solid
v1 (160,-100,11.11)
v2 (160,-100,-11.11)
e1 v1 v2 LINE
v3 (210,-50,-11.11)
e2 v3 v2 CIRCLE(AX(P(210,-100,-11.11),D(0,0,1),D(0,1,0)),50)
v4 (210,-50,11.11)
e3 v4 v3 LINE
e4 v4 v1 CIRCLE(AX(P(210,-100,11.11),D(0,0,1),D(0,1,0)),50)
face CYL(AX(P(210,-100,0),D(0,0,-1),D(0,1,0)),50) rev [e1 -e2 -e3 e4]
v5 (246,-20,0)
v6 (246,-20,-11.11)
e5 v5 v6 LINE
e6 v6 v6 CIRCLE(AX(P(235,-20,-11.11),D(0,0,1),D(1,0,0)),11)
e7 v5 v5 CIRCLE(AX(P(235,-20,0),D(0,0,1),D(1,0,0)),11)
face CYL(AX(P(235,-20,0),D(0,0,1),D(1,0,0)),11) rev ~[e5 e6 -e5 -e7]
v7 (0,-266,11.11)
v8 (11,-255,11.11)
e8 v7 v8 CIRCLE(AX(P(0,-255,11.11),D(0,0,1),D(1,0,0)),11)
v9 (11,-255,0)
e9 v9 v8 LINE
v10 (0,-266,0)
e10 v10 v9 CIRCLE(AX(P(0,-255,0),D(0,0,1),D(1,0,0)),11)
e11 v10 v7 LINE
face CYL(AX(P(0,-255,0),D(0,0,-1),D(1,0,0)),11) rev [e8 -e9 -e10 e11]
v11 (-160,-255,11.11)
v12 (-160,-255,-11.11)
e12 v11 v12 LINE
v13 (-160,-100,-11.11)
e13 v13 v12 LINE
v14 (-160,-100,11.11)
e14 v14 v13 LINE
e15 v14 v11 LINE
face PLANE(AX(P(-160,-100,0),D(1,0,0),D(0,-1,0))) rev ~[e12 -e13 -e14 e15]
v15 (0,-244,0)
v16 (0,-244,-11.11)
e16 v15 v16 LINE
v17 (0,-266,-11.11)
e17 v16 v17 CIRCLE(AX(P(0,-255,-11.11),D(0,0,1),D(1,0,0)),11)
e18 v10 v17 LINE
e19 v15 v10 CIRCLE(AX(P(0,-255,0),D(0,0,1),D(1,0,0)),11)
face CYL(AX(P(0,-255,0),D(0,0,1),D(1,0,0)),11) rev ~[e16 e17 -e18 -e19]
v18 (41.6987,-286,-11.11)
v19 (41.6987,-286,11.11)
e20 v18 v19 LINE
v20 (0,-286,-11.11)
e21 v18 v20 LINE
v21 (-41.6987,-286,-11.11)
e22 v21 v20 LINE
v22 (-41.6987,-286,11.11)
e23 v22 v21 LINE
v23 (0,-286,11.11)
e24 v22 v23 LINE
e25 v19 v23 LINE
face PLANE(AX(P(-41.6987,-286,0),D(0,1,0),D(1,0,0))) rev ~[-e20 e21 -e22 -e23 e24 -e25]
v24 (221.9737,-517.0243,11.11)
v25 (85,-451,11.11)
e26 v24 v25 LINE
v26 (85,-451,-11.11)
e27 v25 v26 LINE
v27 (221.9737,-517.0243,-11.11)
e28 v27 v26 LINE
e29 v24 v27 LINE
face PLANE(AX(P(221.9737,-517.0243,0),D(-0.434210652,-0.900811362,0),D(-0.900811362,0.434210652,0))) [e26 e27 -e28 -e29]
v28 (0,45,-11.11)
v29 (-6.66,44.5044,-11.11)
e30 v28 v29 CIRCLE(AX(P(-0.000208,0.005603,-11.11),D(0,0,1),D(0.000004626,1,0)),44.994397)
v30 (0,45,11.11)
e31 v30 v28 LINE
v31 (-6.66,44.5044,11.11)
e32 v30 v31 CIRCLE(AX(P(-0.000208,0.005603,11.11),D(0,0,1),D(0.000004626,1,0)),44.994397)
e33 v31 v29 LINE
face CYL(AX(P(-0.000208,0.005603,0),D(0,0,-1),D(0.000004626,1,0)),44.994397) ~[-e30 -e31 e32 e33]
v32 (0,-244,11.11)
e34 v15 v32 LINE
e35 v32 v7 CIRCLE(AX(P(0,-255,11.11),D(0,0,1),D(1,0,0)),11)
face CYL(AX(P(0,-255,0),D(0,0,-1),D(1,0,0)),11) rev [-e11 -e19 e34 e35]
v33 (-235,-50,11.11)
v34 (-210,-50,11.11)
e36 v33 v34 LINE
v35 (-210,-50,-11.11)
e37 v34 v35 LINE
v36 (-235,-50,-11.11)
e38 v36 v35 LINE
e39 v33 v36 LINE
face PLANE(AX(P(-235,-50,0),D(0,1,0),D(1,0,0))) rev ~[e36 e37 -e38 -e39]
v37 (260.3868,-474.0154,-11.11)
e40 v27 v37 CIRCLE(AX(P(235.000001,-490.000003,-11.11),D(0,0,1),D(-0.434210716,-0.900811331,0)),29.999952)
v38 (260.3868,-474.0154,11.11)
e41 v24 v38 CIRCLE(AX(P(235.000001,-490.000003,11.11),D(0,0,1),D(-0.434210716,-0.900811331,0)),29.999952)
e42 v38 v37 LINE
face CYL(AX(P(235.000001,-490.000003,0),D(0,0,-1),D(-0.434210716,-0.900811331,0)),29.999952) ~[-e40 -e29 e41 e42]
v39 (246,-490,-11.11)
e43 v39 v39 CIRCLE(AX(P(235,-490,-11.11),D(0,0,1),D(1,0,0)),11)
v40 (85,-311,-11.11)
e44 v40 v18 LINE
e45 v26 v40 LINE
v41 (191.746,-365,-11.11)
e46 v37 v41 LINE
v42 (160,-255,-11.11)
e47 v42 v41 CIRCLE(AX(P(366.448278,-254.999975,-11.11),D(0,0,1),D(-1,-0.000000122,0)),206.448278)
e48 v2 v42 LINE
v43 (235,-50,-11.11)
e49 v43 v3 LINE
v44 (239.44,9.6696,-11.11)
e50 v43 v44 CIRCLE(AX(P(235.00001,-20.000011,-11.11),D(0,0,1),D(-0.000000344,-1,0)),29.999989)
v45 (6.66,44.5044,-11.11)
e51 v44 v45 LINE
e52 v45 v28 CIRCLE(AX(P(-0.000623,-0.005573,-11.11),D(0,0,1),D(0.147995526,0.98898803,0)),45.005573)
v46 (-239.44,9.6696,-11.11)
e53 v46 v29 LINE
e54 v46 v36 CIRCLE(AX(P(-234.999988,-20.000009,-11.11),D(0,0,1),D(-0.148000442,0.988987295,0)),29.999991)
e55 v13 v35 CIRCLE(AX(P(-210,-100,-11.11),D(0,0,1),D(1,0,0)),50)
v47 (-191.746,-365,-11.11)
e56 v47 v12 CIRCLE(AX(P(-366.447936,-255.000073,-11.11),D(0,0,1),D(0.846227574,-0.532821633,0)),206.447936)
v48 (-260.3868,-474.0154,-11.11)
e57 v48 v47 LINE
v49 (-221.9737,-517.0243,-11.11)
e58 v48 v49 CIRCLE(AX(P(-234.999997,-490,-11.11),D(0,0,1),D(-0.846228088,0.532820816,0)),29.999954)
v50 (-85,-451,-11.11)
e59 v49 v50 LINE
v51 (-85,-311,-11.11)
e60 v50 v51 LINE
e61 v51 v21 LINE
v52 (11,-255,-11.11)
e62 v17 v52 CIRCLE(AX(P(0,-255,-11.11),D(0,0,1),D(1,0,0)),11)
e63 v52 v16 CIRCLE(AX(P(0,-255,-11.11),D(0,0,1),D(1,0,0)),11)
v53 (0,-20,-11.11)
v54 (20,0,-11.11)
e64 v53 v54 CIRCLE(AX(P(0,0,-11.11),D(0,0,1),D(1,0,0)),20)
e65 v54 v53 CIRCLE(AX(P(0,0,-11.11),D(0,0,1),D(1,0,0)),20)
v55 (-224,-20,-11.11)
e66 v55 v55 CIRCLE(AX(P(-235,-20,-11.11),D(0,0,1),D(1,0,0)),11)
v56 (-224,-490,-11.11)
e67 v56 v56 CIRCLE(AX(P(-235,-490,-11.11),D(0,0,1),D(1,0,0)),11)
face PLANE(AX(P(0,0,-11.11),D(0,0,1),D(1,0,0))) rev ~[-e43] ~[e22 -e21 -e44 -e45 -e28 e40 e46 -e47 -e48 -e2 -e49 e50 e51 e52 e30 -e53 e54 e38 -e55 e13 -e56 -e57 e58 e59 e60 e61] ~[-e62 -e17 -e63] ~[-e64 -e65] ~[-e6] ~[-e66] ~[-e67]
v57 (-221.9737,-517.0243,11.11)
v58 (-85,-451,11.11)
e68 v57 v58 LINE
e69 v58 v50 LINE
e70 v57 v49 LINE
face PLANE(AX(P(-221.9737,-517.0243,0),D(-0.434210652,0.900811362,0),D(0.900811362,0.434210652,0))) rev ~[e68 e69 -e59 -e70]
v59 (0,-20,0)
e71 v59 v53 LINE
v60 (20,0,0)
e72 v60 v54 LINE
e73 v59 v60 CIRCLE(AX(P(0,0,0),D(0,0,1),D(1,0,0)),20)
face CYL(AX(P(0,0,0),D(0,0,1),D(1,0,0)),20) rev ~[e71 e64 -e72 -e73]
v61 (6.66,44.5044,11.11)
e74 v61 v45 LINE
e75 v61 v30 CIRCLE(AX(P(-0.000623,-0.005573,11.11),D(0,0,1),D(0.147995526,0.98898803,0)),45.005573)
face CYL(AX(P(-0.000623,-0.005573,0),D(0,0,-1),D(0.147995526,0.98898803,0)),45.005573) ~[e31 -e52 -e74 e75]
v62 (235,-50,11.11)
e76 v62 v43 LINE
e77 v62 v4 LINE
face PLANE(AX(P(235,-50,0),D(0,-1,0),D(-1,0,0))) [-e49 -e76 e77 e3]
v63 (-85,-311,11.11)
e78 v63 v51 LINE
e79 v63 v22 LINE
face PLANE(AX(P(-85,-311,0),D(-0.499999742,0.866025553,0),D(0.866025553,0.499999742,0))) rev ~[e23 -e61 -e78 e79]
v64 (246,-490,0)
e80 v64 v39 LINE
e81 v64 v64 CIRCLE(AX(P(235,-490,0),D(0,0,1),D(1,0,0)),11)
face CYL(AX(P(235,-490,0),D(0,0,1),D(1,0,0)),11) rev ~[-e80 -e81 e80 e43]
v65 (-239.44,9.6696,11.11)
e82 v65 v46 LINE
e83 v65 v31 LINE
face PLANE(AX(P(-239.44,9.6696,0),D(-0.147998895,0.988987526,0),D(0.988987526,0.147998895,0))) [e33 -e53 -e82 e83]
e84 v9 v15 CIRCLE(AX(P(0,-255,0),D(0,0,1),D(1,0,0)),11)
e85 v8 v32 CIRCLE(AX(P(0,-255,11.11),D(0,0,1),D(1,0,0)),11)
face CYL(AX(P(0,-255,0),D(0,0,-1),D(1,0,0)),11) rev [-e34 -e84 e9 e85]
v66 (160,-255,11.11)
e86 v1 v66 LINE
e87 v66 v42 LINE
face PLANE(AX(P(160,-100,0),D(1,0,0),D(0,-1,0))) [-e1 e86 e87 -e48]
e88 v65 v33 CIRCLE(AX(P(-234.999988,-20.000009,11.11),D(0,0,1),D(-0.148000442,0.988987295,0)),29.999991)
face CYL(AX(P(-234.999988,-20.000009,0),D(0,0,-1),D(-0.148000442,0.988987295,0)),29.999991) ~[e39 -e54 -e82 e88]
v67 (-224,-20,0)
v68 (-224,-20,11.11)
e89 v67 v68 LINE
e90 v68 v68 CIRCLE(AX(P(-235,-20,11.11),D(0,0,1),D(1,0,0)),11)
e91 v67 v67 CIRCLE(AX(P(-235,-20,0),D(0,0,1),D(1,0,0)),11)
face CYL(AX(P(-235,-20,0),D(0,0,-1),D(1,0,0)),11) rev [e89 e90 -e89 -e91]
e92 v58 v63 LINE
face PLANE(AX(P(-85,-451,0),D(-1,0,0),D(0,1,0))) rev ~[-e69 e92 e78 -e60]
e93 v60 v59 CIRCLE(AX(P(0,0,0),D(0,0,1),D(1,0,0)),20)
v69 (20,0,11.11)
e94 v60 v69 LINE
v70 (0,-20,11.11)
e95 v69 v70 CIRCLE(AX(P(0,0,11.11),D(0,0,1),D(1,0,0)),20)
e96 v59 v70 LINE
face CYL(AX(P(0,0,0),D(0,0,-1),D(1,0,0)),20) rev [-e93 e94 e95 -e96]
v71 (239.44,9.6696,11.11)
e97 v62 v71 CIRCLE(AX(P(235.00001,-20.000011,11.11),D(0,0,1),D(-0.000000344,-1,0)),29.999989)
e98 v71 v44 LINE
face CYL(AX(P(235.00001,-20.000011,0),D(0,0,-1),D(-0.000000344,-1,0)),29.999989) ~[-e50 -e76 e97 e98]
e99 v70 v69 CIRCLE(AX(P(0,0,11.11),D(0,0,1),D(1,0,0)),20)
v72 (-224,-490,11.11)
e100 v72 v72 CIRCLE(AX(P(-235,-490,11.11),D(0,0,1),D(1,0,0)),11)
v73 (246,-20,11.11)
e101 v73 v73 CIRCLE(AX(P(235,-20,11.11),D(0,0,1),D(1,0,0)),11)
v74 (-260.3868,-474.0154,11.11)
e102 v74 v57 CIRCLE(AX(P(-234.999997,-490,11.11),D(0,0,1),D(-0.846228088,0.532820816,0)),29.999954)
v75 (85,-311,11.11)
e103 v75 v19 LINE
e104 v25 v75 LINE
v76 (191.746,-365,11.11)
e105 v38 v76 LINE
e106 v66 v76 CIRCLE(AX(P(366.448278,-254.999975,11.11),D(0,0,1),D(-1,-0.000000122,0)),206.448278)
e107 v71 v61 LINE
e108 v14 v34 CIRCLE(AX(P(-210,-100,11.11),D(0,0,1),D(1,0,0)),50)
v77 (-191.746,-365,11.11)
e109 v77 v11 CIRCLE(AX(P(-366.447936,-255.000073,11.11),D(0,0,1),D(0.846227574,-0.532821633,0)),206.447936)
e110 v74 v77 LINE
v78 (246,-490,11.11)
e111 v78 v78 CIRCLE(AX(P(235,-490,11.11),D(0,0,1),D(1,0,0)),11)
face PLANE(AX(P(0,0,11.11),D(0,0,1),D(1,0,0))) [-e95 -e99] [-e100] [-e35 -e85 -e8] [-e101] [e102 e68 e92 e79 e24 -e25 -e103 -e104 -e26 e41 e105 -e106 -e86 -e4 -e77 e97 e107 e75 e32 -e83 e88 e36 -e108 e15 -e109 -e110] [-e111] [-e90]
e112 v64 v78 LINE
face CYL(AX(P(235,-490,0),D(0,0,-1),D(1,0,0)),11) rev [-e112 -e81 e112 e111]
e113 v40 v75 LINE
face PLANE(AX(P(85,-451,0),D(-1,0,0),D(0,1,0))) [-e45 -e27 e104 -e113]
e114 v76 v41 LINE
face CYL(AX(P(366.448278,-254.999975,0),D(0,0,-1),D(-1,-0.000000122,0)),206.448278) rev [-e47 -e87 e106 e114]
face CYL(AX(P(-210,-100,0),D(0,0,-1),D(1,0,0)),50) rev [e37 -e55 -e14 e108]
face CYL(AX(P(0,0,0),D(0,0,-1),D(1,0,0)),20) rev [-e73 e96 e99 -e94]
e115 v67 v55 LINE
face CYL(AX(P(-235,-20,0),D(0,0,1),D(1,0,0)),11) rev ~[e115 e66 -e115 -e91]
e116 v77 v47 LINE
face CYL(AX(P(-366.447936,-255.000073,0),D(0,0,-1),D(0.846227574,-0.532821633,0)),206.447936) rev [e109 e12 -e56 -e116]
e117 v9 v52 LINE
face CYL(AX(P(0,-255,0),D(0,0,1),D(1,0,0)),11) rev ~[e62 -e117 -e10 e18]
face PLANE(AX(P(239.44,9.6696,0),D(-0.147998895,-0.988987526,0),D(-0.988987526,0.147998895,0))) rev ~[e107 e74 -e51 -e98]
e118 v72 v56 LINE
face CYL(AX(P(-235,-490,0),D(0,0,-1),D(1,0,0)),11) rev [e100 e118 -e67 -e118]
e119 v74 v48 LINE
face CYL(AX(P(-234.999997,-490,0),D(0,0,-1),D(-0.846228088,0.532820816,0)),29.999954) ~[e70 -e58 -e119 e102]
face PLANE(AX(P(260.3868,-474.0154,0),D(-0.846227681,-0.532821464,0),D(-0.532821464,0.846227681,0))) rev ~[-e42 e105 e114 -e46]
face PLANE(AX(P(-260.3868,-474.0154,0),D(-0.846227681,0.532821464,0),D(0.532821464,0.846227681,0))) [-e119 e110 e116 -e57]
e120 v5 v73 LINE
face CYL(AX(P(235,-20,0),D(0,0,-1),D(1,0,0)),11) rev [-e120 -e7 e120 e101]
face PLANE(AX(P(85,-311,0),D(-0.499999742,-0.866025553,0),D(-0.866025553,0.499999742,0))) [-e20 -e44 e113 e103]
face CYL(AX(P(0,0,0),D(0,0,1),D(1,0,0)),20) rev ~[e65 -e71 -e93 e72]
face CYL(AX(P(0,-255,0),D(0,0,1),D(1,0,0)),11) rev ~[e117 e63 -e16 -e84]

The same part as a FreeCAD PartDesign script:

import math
import FreeCAD as App
import Part
import Sketcher

V = App.Vector

doc = App.newDocument("Part")
body = doc.addObject("PartDesign::Body", "Body")

# Sketch on XY plane
sketch1 = body.newObject("Sketcher::SketchObject", "Sketch")
sketch1.AttachmentSupport = (doc.getObject("XY_Plane"), [""])
sketch1.MapMode = "FlatFace"
sketch1.addGeometry(Part.LineSegment(V(-41.6987, -286, 0), V(0, -286, 0)), False)
sketch1.addGeometry(Part.LineSegment(V(0, -286, 0), V(41.6987, -286, 0)), False)
sketch1.addGeometry(Part.LineSegment(V(41.6987, -286, 0), V(85, -311, 0)), False)
sketch1.addGeometry(Part.LineSegment(V(85, -311, 0), V(85, -451, 0)), False)
sketch1.addGeometry(Part.LineSegment(V(85, -451, 0), V(221.9737, -517.0243, 0)), False)
sketch1.addGeometry(Part.ArcOfCircle(Part.Circle(V(235, -490, 0), V(0, 0, 1), 29.999955), math.radians(-115.735077), math.radians(32.196249)), False)
sketch1.addGeometry(Part.LineSegment(V(260.3868, -474.0154, 0), V(191.746, -365, 0)), False)
sketch1.addGeometry(Part.ArcOfCircle(Part.Circle(V(366.4481, -255, 0), V(0, 0, 1), 206.4481), math.radians(180), math.radians(212.196293)), False)
sketch1.addGeometry(Part.LineSegment(V(160, -255, 0), V(160, -100, 0)), False)
sketch1.addGeometry(Part.ArcOfCircle(Part.Circle(V(210, -100, 0), V(0, 0, 1), 50), math.radians(90), math.radians(180)), False)
sketch1.addGeometry(Part.LineSegment(V(210, -50, 0), V(235, -50, 0)), False)
sketch1.addGeometry(Part.ArcOfCircle(Part.Circle(V(235, -20, 0), V(0, 0, 1), 30), math.radians(-90), math.radians(81.488953)), False)
sketch1.addGeometry(Part.LineSegment(V(239.44, 9.6696, 0), V(6.66, 44.5044, 0)), False)
sketch1.addGeometry(Part.ArcOfCircle(Part.Circle(V(-0.000623, -0.005573, 0), V(0, 0, 1), 45.005573), math.radians(81.489218), math.radians(89.999206)), False)
sketch1.addGeometry(Part.ArcOfCircle(Part.Circle(V(-0.000208, 0.005603, 0), V(0, 0, 1), 44.994397), math.radians(89.999735), math.radians(98.511841)), False)
sketch1.addGeometry(Part.LineSegment(V(-6.66, 44.5044, 0), V(-239.44, 9.6696, 0)), False)
sketch1.addGeometry(Part.ArcOfCircle(Part.Circle(V(-235, -20, 0), V(0, 0, 1), 29.999979), math.radians(98.511047), math.radians(270)), False)
sketch1.addGeometry(Part.LineSegment(V(-235, -50, 0), V(-210, -50, 0)), False)
sketch1.addGeometry(Part.ArcOfCircle(Part.Circle(V(-210, -100, 0), V(0, 0, 1), 50), math.radians(0), math.radians(90)), False)
sketch1.addGeometry(Part.LineSegment(V(-160, -100, 0), V(-160, -255, 0)), False)
sketch1.addGeometry(Part.ArcOfCircle(Part.Circle(V(-366.4481, -255, 0), V(0, 0, 1), 206.448114), math.radians(-32.196293), math.radians(0)), False)
sketch1.addGeometry(Part.LineSegment(V(-191.746, -365, 0), V(-260.3868, -474.0154, 0)), False)
sketch1.addGeometry(Part.ArcOfCircle(Part.Circle(V(-235, -490, 0), V(0, 0, 1), 29.999951), math.radians(147.803751), math.radians(295.735077)), False)
sketch1.addGeometry(Part.LineSegment(V(-221.9737, -517.0243, 0), V(-85, -451, 0)), False)
sketch1.addGeometry(Part.LineSegment(V(-85, -451, 0), V(-85, -311, 0)), False)
sketch1.addGeometry(Part.LineSegment(V(-85, -311, 0), V(-41.6987, -286, 0)), False)
sketch1.addGeometry(Part.Circle(V(-235, -490, 0), V(0, 0, 1), 11), False)
sketch1.addGeometry(Part.ArcOfCircle(Part.Circle(V(0, -255, 0), V(0, 0, 1), 11), math.radians(90), math.radians(270)), False)
sketch1.addGeometry(Part.ArcOfCircle(Part.Circle(V(0, -255, 0), V(0, 0, 1), 11), math.radians(-90), math.radians(90)), False)
sketch1.addGeometry(Part.Circle(V(235, -490, 0), V(0, 0, 1), 11), False)
sketch1.addGeometry(Part.Circle(V(-235, -20, 0), V(0, 0, 1), 11), False)
sketch1.addGeometry(Part.Circle(V(0, 0, 0), V(0, 0, 1), 20), False)
sketch1.addGeometry(Part.Circle(V(235, -20, 0), V(0, 0, 1), 11), False)
sketch1.addConstraint(Sketcher.Constraint("Coincident", 0, 2, 1, 1))
sketch1.addConstraint(Sketcher.Constraint("Coincident", 1, 2, 2, 1))
sketch1.addConstraint(Sketcher.Constraint("Coincident", 2, 2, 3, 1))
sketch1.addConstraint(Sketcher.Constraint("Coincident", 3, 2, 4, 1))
sketch1.addConstraint(Sketcher.Constraint("Coincident", 4, 2, 5, 1))
sketch1.addConstraint(Sketcher.Constraint("Coincident", 5, 2, 6, 1))
sketch1.addConstraint(Sketcher.Constraint("Coincident", 6, 2, 7, 2))
sketch1.addConstraint(Sketcher.Constraint("Coincident", 7, 1, 8, 1))
sketch1.addConstraint(Sketcher.Constraint("Coincident", 8, 2, 9, 2))
sketch1.addConstraint(Sketcher.Constraint("Coincident", 9, 1, 10, 1))
sketch1.addConstraint(Sketcher.Constraint("Coincident", 10, 2, 11, 1))
sketch1.addConstraint(Sketcher.Constraint("Coincident", 11, 2, 12, 1))
sketch1.addConstraint(Sketcher.Constraint("Coincident", 12, 2, 13, 1))
sketch1.addConstraint(Sketcher.Constraint("Coincident", 13, 2, 14, 1))
sketch1.addConstraint(Sketcher.Constraint("Coincident", 14, 2, 15, 1))
sketch1.addConstraint(Sketcher.Constraint("Coincident", 15, 2, 16, 1))
sketch1.addConstraint(Sketcher.Constraint("Coincident", 16, 2, 17, 1))
sketch1.addConstraint(Sketcher.Constraint("Coincident", 17, 2, 18, 2))
sketch1.addConstraint(Sketcher.Constraint("Coincident", 18, 1, 19, 1))
sketch1.addConstraint(Sketcher.Constraint("Coincident", 19, 2, 20, 2))
sketch1.addConstraint(Sketcher.Constraint("Coincident", 20, 1, 21, 1))
sketch1.addConstraint(Sketcher.Constraint("Coincident", 21, 2, 22, 1))
sketch1.addConstraint(Sketcher.Constraint("Coincident", 22, 2, 23, 1))
sketch1.addConstraint(Sketcher.Constraint("Coincident", 23, 2, 24, 1))
sketch1.addConstraint(Sketcher.Constraint("Coincident", 24, 2, 25, 1))
sketch1.addConstraint(Sketcher.Constraint("Coincident", 25, 2, 0, 1))
sketch1.addConstraint(Sketcher.Constraint("Coincident", 27, 1, 28, 2))
sketch1.addConstraint(Sketcher.Constraint("Coincident", 28, 1, 27, 2))
sketch1.addConstraint(Sketcher.Constraint("Horizontal", 0))
sketch1.addConstraint(Sketcher.Constraint("Horizontal", 1))
sketch1.addConstraint(Sketcher.Constraint("Vertical", 3))
sketch1.addConstraint(Sketcher.Constraint("Vertical", 8))
sketch1.addConstraint(Sketcher.Constraint("Horizontal", 10))
sketch1.addConstraint(Sketcher.Constraint("Horizontal", 17))
sketch1.addConstraint(Sketcher.Constraint("Vertical", 19))
sketch1.addConstraint(Sketcher.Constraint("Vertical", 24))
sketch1.addConstraint(Sketcher.Constraint("Coincident", 31, 3, -1, 1))
sketch1.addConstraint(Sketcher.Constraint("Coincident", 26, 3, 22, 3))
sketch1.addConstraint(Sketcher.Constraint("Coincident", 29, 3, 5, 3))
sketch1.addConstraint(Sketcher.Constraint("Coincident", 30, 3, 16, 3))
sketch1.addConstraint(Sketcher.Constraint("Coincident", 32, 3, 11, 3))
sketch1.addConstraint(Sketcher.Constraint("PointOnObject", 27, 3, -2))
sketch1.addConstraint(Sketcher.Constraint("PointOnObject", 28, 3, -2))
sketch1.addConstraint(Sketcher.Constraint("PointOnObject", 0, 2, -2))
sketch1.addConstraint(Sketcher.Constraint("PointOnObject", 13, 2, -2))
sketch1.addConstraint(Sketcher.Constraint("PointOnObject", 27, 1, -2))
sketch1.addConstraint(Sketcher.Constraint("PointOnObject", 28, 1, -2))
sketch1.addConstraint(Sketcher.Constraint("Diameter", 26, 22.0))
sketch1.addConstraint(Sketcher.Constraint("Diameter", 29, 22.0))
sketch1.addConstraint(Sketcher.Constraint("Diameter", 30, 22.0))
sketch1.addConstraint(Sketcher.Constraint("Diameter", 31, 40.0))
sketch1.addConstraint(Sketcher.Constraint("Diameter", 32, 22.0))
sketch1.addConstraint(Sketcher.Constraint("Radius", 5, 30.0))
sketch1.addConstraint(Sketcher.Constraint("Radius", 9, 50.0))
sketch1.addConstraint(Sketcher.Constraint("Radius", 11, 30.0))
sketch1.addConstraint(Sketcher.Constraint("Radius", 16, 30.0))
sketch1.addConstraint(Sketcher.Constraint("Radius", 18, 50.0))
sketch1.addConstraint(Sketcher.Constraint("Radius", 22, 30.0))
sketch1.addConstraint(Sketcher.Constraint("Radius", 27, 11.0))
sketch1.addConstraint(Sketcher.Constraint("DistanceX", 10, 1, 10, 2, 25.0))
sketch1.addConstraint(Sketcher.Constraint("DistanceX", 17, 1, 17, 2, 25.0))
sketch1.addConstraint(Sketcher.Constraint("DistanceY", 3, 2, 3, 1, 140.0))
sketch1.addConstraint(Sketcher.Constraint("DistanceY", 24, 1, 24, 2, 140.0))
sketch1.addConstraint(Sketcher.Constraint("Distance", 2, 50.0))
sketch1.addConstraint(Sketcher.Constraint("Distance", 25, 50.0))
sketch1.addConstraint(Sketcher.Constraint("DistanceX", -1, 1, 5, 3, 235.0))
sketch1.addConstraint(Sketcher.Constraint("DistanceX", -1, 1, 11, 3, 235.0))
sketch1.addConstraint(Sketcher.Constraint("DistanceY", 11, 3, -1, 1, 20.0))
sketch1.addConstraint(Sketcher.Constraint("DistanceX", 16, 3, -1, 1, 235.0))
sketch1.addConstraint(Sketcher.Constraint("DistanceY", 16, 3, -1, 1, 20.0))
sketch1.addConstraint(Sketcher.Constraint("DistanceX", 22, 3, -1, 1, 235.0))
sketch1.addConstraint(Sketcher.Constraint("DistanceX", -1, 1, 10, 2, 235.0))
sketch1.addConstraint(Sketcher.Constraint("DistanceX", 16, 2, -1, 1, 235.0))
sketch1.addConstraint(Sketcher.Constraint("DistanceY", 5, 3, 7, 3, 235.0))
sketch1.addConstraint(Sketcher.Constraint("DistanceX", 9, 3, 5, 3, 25.0))
sketch1.addConstraint(Sketcher.Constraint("DistanceY", 7, 3, 11, 3, 235.0))
sketch1.addConstraint(Sketcher.Constraint("DistanceX", 16, 3, 18, 3, 25.0))
sketch1.addConstraint(Sketcher.Constraint("DistanceY", 20, 3, 16, 3, 235.0))
sketch1.addConstraint(Sketcher.Constraint("DistanceY", 22, 3, 20, 3, 235.0))
sketch1.addConstraint(Sketcher.Constraint("DistanceY", 5, 3, 27, 3, 235.0))
sketch1.addConstraint(Sketcher.Constraint("DistanceY", 2, 2, 1, 2, 25.0))
sketch1.addConstraint(Sketcher.Constraint("DistanceX", 2, 2, 7, 1, 75.0))
sketch1.addConstraint(Sketcher.Constraint("DistanceY", 6, 2, 7, 1, 110.0))
sketch1.addConstraint(Sketcher.Constraint("DistanceY", 8, 2, 9, 1, 50.0))
sketch1.addConstraint(Sketcher.Constraint("DistanceY", 18, 1, 17, 2, 50.0))
sketch1.addConstraint(Sketcher.Constraint("DistanceY", 20, 1, 19, 2, 110.0))
sketch1.addConstraint(Sketcher.Constraint("DistanceY", 20, 1, 20, 3, 110.0))
sketch1.addConstraint(Sketcher.Constraint("DistanceY", 24, 2, 0, 2, 25.0))
sketch1.addConstraint(Sketcher.Constraint("DistanceX", 19, 2, 24, 2, 75.0))
sketch1.addConstraint(Sketcher.Constraint("DistanceY", 0, 2, 28, 1, 20.0))
sketch1.addConstraint(Sketcher.Constraint("DistanceY", 8, 1, 8, 2, 155.0))
sketch1.addConstraint(Sketcher.Constraint("DistanceY", -1, 1, 13, 2, 45.0))
sketch1.addConstraint(Sketcher.Constraint("Radius", 7, 206.448))
sketch1.addConstraint(Sketcher.Constraint("Radius", 20, 206.448))
sketch1.addConstraint(Sketcher.Constraint("Radius", 13, 45.0056))
sketch1.addConstraint(Sketcher.Constraint("Radius", 14, 44.9944))
sketch1.addConstraint(Sketcher.Constraint("DistanceX", 14, 3, 11, 3, 235.0002))
sketch1.addConstraint(Sketcher.Constraint("DistanceX", -1, 1, 11, 2, 239.44))
sketch1.addConstraint(Sketcher.Constraint("DistanceX", -1, 1, 12, 2, 6.66))
sketch1.addConstraint(Sketcher.Constraint("DistanceX", 14, 2, -1, 1, 6.66))
sketch1.addConstraint(Sketcher.Constraint("DistanceX", 15, 2, -1, 1, 239.44))
sketch1.addConstraint(Sketcher.Constraint("DistanceY", 13, 3, 12, 2, 44.51))
sketch1.addConstraint(Sketcher.Constraint("Distance", 4, 152.056))
sketch1.addConstraint(Sketcher.Constraint("Distance", 23, 152.056))
sketch1.addConstraint(Sketcher.Constraint("DistanceX", 4, 2, 5, 2, 38.413))
sketch1.addConstraint(Sketcher.Constraint("DistanceX", 21, 2, 22, 2, 38.413))
pad1 = body.newObject("PartDesign::Pad", "Pad")
pad1.Profile = sketch1
pad1.Length = 22.22
pad1.Midplane = True

doc.recompute()
